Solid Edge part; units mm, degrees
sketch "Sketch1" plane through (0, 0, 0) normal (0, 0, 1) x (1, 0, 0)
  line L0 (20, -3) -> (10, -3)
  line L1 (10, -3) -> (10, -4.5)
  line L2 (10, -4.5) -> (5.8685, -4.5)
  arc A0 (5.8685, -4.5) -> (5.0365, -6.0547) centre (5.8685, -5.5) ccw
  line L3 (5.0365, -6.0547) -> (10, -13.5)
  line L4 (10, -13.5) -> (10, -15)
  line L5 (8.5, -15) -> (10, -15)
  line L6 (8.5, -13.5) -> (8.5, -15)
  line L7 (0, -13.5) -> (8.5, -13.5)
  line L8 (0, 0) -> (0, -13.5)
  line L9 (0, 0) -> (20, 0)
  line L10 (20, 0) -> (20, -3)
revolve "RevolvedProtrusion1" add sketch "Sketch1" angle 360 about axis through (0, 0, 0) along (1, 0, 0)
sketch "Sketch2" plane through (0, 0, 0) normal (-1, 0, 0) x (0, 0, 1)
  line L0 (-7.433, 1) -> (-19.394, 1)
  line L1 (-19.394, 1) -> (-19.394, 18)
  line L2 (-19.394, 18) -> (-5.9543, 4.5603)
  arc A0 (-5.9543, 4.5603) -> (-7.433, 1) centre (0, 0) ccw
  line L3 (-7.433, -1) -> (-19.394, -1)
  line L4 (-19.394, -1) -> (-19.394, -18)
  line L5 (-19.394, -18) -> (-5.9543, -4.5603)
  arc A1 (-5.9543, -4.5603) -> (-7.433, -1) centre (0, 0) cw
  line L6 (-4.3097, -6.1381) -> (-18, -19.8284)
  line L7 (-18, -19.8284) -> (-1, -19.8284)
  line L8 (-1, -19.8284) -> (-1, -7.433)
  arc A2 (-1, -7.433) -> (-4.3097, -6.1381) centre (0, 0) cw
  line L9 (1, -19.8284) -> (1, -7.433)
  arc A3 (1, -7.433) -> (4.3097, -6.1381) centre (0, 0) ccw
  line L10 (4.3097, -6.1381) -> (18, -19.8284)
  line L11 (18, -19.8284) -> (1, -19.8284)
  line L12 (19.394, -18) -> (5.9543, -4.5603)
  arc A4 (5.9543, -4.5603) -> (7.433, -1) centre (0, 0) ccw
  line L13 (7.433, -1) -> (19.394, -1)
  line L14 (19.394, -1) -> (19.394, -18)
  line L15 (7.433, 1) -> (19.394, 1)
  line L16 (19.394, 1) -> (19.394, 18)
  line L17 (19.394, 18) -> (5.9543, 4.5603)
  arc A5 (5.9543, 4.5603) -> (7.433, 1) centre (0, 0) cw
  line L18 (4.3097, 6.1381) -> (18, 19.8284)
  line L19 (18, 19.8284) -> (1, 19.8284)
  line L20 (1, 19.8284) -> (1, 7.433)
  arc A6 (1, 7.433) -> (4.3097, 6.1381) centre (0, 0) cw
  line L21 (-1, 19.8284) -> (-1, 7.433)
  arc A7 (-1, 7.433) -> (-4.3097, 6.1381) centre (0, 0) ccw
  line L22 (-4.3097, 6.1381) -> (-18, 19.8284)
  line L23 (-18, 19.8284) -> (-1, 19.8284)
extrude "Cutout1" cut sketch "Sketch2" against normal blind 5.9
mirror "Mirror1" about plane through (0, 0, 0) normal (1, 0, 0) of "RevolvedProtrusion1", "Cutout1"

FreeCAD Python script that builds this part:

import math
import FreeCAD as App
import Part
import Sketcher
Q = App.Units.Quantity

doc = App.newDocument("Part")
body = doc.addObject("PartDesign::Body", "Body")

# Sketch on XY plane
sketch1 = body.newObject("Sketcher::SketchObject", "Sketch")
sketch1.AttachmentSupport = (doc.getObject("XY_Plane"), [""])
sketch1.MapMode = "FlatFace"
sketch1.addGeometry(Part.LineSegment(App.Vector(10, -3, 0), App.Vector(20, -3, 0)), False)
sketch1.addGeometry(Part.LineSegment(App.Vector(20, -3, 0), App.Vector(20, 0, 0)), False)
sketch1.addGeometry(Part.LineSegment(App.Vector(20, 0, 0), App.Vector(0, 0, 0)), False)
sketch1.addGeometry(Part.LineSegment(App.Vector(0, 0, 0), App.Vector(0, -13.5, 0)), False)
sketch1.addGeometry(Part.LineSegment(App.Vector(0, -13.5, 0), App.Vector(8.5, -13.5, 0)), False)
sketch1.addGeometry(Part.LineSegment(App.Vector(8.5, -13.5, 0), App.Vector(8.5, -15, 0)), False)
sketch1.addGeometry(Part.LineSegment(App.Vector(8.5, -15, 0), App.Vector(10, -15, 0)), False)
sketch1.addGeometry(Part.LineSegment(App.Vector(10, -15, 0), App.Vector(10, -13.5, 0)), False)
sketch1.addGeometry(Part.LineSegment(App.Vector(10, -13.5, 0), App.Vector(5, -6.1, 0)), False)
sketch1.addGeometry(Part.ArcOfCircle(Part.Circle(App.Vector(5.9, -5.5, 0), App.Vector(0, 0, 1), 1), math.radians(90), math.radians(214)), False)
sketch1.addGeometry(Part.LineSegment(App.Vector(5.9, -4.5, 0), App.Vector(10, -4.5, 0)), False)
sketch1.addGeometry(Part.LineSegment(App.Vector(10, -4.5, 0), App.Vector(10, -3, 0)), False)
sketch1.addConstraint(Sketcher.Constraint("Coincident", 0, 2, 1, 1))
sketch1.addConstraint(Sketcher.Constraint("Coincident", 1, 2, 2, 1))
sketch1.addConstraint(Sketcher.Constraint("Coincident", 2, 2, 3, 1))
sketch1.addConstraint(Sketcher.Constraint("Coincident", 3, 2, 4, 1))
sketch1.addConstraint(Sketcher.Constraint("Coincident", 4, 2, 5, 1))
sketch1.addConstraint(Sketcher.Constraint("Coincident", 5, 2, 6, 1))
sketch1.addConstraint(Sketcher.Constraint("Coincident", 6, 2, 7, 1))
sketch1.addConstraint(Sketcher.Constraint("Coincident", 7, 2, 8, 1))
sketch1.addConstraint(Sketcher.Constraint("Tangent", 8, 2, 9, 2))
sketch1.addConstraint(Sketcher.Constraint("Tangent", 9, 1, 10, 1))
sketch1.addConstraint(Sketcher.Constraint("Coincident", 10, 2, 11, 1))
sketch1.addConstraint(Sketcher.Constraint("Coincident", 11, 2, 0, 1))
sketch1.addConstraint(Sketcher.Constraint("Horizontal", 0))
sketch1.addConstraint(Sketcher.Constraint("Vertical", 1))
sketch1.addConstraint(Sketcher.Constraint("Horizontal", 2))
sketch1.addConstraint(Sketcher.Constraint("Vertical", 3))
sketch1.addConstraint(Sketcher.Constraint("Horizontal", 4))
sketch1.addConstraint(Sketcher.Constraint("Vertical", 5))
sketch1.addConstraint(Sketcher.Constraint("Horizontal", 6))
sketch1.addConstraint(Sketcher.Constraint("Vertical", 7))
sketch1.addConstraint(Sketcher.Constraint("Horizontal", 10))
sketch1.addConstraint(Sketcher.Constraint("Vertical", 11))
sketch1.addConstraint(Sketcher.Constraint("Coincident", 2, 2, -1, 1))
sketch1.addConstraint(Sketcher.Constraint("Horizontal", 4, 2, 7, 2))
sketch1.addConstraint(Sketcher.Constraint("Vertical", 7, 2, 10, 2))
sketch1.addConstraint(Sketcher.Constraint("Equal", 6, 5))
sketch1.addConstraint(Sketcher.Constraint("Equal", 7, 11))
sketch1.addConstraint(Sketcher.Constraint("Radius", 9, 1.0))
sketch1.addConstraint(Sketcher.Constraint("DistanceX", 0, 1, 0, 2, 10.0))
sketch1.addConstraint(Sketcher.Constraint("DistanceX", 2, 2, 2, 1, 20.0))
sketch1.addConstraint(Sketcher.Constraint("DistanceY", 1, 1, 1, 2, 3.0))
sketch1.addConstraint(Sketcher.Constraint("DistanceX", 4, 1, 4, 2, 8.5))
sketch1.addConstraint(Sketcher.Constraint("DistanceY", 3, 2, 3, 1, 13.5))
sketch1.addConstraint(Sketcher.Constraint("Angle", 8, Q("123.69 deg")))
revolution = body.newObject("PartDesign::Revolution", "Revolution")
revolution.Profile = sketch1
revolution.ReferenceAxis = (sketch1, ["H_Axis"])
revolution.Angle = 360

# Sketch on YZ plane
sketch2 = body.newObject("Sketcher::SketchObject", "Sketch001")
sketch2.AttachmentSupport = (doc.getObject("YZ_Plane"), [""])
sketch2.MapMode = "FlatFace"
sketch2.addGeometry(Part.LineSegment(App.Vector(1, -19.4, 0), App.Vector(1, -7.4, 0)), False)
sketch2.addGeometry(Part.ArcOfCircle(Part.Circle(App.Vector(0, 0, 0), App.Vector(0, 0, 1), 7.5), math.radians(-82), math.radians(-53)), False)
sketch2.addGeometry(Part.LineSegment(App.Vector(4.6, -6, 0), App.Vector(18, -19.4, 0)), False)
sketch2.addGeometry(Part.LineSegment(App.Vector(18, -19.4, 0), App.Vector(1, -19.4, 0)), False)
sketch2.addGeometry(Part.ArcOfCircle(Part.Circle(App.Vector(0, 0, 0), App.Vector(0, 0, 1), 7.5), math.radians(-127), math.radians(-98)), False)
sketch2.addGeometry(Part.LineSegment(App.Vector(-1, -7.4, 0), App.Vector(-1, -19.4, 0)), False)
sketch2.addGeometry(Part.LineSegment(App.Vector(-1, -19.4, 0), App.Vector(-18, -19.4, 0)), False)
sketch2.addGeometry(Part.LineSegment(App.Vector(-18, -19.4, 0), App.Vector(-4.6, -6, 0)), False)
sketch2.addGeometry(Part.ArcOfCircle(Part.Circle(App.Vector(0, 0, 0), App.Vector(0, 0, 1), 7.5), math.radians(-172), math.radians(-145)), False)
sketch2.addGeometry(Part.LineSegment(App.Vector(-6.1, -4.3, 0), App.Vector(-19.8, -18, 0)), False)
sketch2.addGeometry(Part.LineSegment(App.Vector(-19.8, -18, 0), App.Vector(-19.8, -1, 0)), False)
sketch2.addGeometry(Part.LineSegment(App.Vector(-19.8, -1, 0), App.Vector(-7.4, -1, 0)), False)
sketch2.addGeometry(Part.LineSegment(App.Vector(-7.4, 1, 0), App.Vector(-19.8, 1, 0)), False)
sketch2.addGeometry(Part.LineSegment(App.Vector(-19.8, 1, 0), App.Vector(-19.8, 18, 0)), False)
sketch2.addGeometry(Part.LineSegment(App.Vector(-19.8, 18, 0), App.Vector(-6.1, 4.3, 0)), False)
sketch2.addGeometry(Part.ArcOfCircle(Part.Circle(App.Vector(0, 0, 0), App.Vector(0, 0, 1), 7.5), math.radians(145), math.radians(172)), False)
sketch2.addGeometry(Part.LineSegment(App.Vector(-4.6, 6, 0), App.Vector(-18, 19.4, 0)), False)
sketch2.addGeometry(Part.LineSegment(App.Vector(-18, 19.4, 0), App.Vector(-1, 19.4, 0)), False)
sketch2.addGeometry(Part.LineSegment(App.Vector(-1, 19.4, 0), App.Vector(-1, 7.4, 0)), False)
sketch2.addGeometry(Part.ArcOfCircle(Part.Circle(App.Vector(0, 0, 0), App.Vector(0, 0, 1), 7.5), math.radians(98), math.radians(127)), False)
sketch2.addGeometry(Part.ArcOfCircle(Part.Circle(App.Vector(0, 0, 0), App.Vector(0, 0, 1), 7.5), math.radians(53), math.radians(82)), False)
sketch2.addGeometry(Part.LineSegment(App.Vector(1, 7.4, 0), App.Vector(1, 19.4, 0)), False)
sketch2.addGeometry(Part.LineSegment(App.Vector(1, 19.4, 0), App.Vector(18, 19.4, 0)), False)
sketch2.addGeometry(Part.LineSegment(App.Vector(18, 19.4, 0), App.Vector(4.6, 6, 0)), False)
sketch2.addGeometry(Part.ArcOfCircle(Part.Circle(App.Vector(0, 0, 0), App.Vector(0, 0, 1), 7.5), math.radians(8), math.radians(35)), False)
sketch2.addGeometry(Part.LineSegment(App.Vector(6.1, 4.3, 0), App.Vector(19.8, 18, 0)), False)
sketch2.addGeometry(Part.LineSegment(App.Vector(19.8, 18, 0), App.Vector(19.8, 1, 0)), False)
sketch2.addGeometry(Part.LineSegment(App.Vector(19.8, 1, 0), App.Vector(7.4, 1, 0)), False)
sketch2.addGeometry(Part.LineSegment(App.Vector(7.4, -1, 0), App.Vector(19.8, -1, 0)), False)
sketch2.addGeometry(Part.LineSegment(App.Vector(19.8, -1, 0), App.Vector(19.8, -18, 0)), False)
sketch2.addGeometry(Part.LineSegment(App.Vector(19.8, -18, 0), App.Vector(6.1, -4.3, 0)), False)
sketch2.addGeometry(Part.ArcOfCircle(Part.Circle(App.Vector(0, 0, 0), App.Vector(0, 0, 1), 7.5), math.radians(-35), math.radians(-8)), False)
sketch2.addConstraint(Sketcher.Constraint("Coincident", 0, 2, 1, 1))
sketch2.addConstraint(Sketcher.Constraint("Coincident", 1, 2, 2, 1))
sketch2.addConstraint(Sketcher.Constraint("Coincident", 2, 2, 3, 1))
sketch2.addConstraint(Sketcher.Constraint("Coincident", 3, 2, 0, 1))
sketch2.addConstraint(Sketcher.Constraint("Coincident", 4, 2, 5, 1))
sketch2.addConstraint(Sketcher.Constraint("Coincident", 5, 2, 6, 1))
sketch2.addConstraint(Sketcher.Constraint("Coincident", 6, 2, 7, 1))
sketch2.addConstraint(Sketcher.Constraint("Coincident", 7, 2, 4, 1))
sketch2.addConstraint(Sketcher.Constraint("Coincident", 8, 2, 9, 1))
sketch2.addConstraint(Sketcher.Constraint("Coincident", 9, 2, 10, 1))
sketch2.addConstraint(Sketcher.Constraint("Coincident", 10, 2, 11, 1))
sketch2.addConstraint(Sketcher.Constraint("Coincident", 11, 2, 8, 1))
sketch2.addConstraint(Sketcher.Constraint("Coincident", 12, 2, 13, 1))
sketch2.addConstraint(Sketcher.Constraint("Coincident", 13, 2, 14, 1))
sketch2.addConstraint(Sketcher.Constraint("Coincident", 14, 2, 15, 1))
sketch2.addConstraint(Sketcher.Constraint("Coincident", 15, 2, 12, 1))
sketch2.addConstraint(Sketcher.Constraint("Coincident", 16, 2, 17, 1))
sketch2.addConstraint(Sketcher.Constraint("Coincident", 17, 2, 18, 1))
sketch2.addConstraint(Sketcher.Constraint("Coincident", 18, 2, 19, 1))
sketch2.addConstraint(Sketcher.Constraint("Coincident", 19, 2, 16, 1))
sketch2.addConstraint(Sketcher.Constraint("Coincident", 20, 2, 21, 1))
sketch2.addConstraint(Sketcher.Constraint("Coincident", 21, 2, 22, 1))
sketch2.addConstraint(Sketcher.Constraint("Coincident", 22, 2, 23, 1))
sketch2.addConstraint(Sketcher.Constraint("Coincident", 23, 2, 20, 1))
sketch2.addConstraint(Sketcher.Constraint("Coincident", 24, 2, 25, 1))
sketch2.addConstraint(Sketcher.Constraint("Coincident", 25, 2, 26, 1))
sketch2.addConstraint(Sketcher.Constraint("Coincident", 26, 2, 27, 1))
sketch2.addConstraint(Sketcher.Constraint("Coincident", 27, 2, 24, 1))
sketch2.addConstraint(Sketcher.Constraint("Coincident", 28, 2, 29, 1))
sketch2.addConstraint(Sketcher.Constraint("Coincident", 29, 2, 30, 1))
sketch2.addConstraint(Sketcher.Constraint("Coincident", 30, 2, 31, 1))
sketch2.addConstraint(Sketcher.Constraint("Coincident", 31, 2, 28, 1))
sketch2.addConstraint(Sketcher.Constraint("Vertical", 0))
sketch2.addConstraint(Sketcher.Constraint("Horizontal", 3))
sketch2.addConstraint(Sketcher.Constraint("Vertical", 5))
sketch2.addConstraint(Sketcher.Constraint("Horizontal", 6))
sketch2.addConstraint(Sketcher.Constraint("Vertical", 10))
sketch2.addConstraint(Sketcher.Constraint("Horizontal", 11))
sketch2.addConstraint(Sketcher.Constraint("Horizontal", 12))
sketch2.addConstraint(Sketcher.Constraint("Vertical", 13))
sketch2.addConstraint(Sketcher.Constraint("Horizontal", 17))
sketch2.addConstraint(Sketcher.Constraint("Vertical", 18))
sketch2.addConstraint(Sketcher.Constraint("Vertical", 21))
sketch2.addConstraint(Sketcher.Constraint("Horizontal", 22))
sketch2.addConstraint(Sketcher.Constraint("Vertical", 26))
sketch2.addConstraint(Sketcher.Constraint("Horizontal", 27))
sketch2.addConstraint(Sketcher.Constraint("Horizontal", 28))
sketch2.addConstraint(Sketcher.Constraint("Vertical", 29))
sketch2.addConstraint(Sketcher.Constraint("Coincident", 1, 3, -1, 1))
sketch2.addConstraint(Sketcher.Constraint("Coincident", 4, 3, -1, 1))
sketch2.addConstraint(Sketcher.Constraint("Coincident", 8, 3, -1, 1))
sketch2.addConstraint(Sketcher.Constraint("Coincident", 15, 3, -1, 1))
sketch2.addConstraint(Sketcher.Constraint("Coincident", 19, 3, -1, 1))
sketch2.addConstraint(Sketcher.Constraint("Coincident", 20, 3, -1, 1))
sketch2.addConstraint(Sketcher.Constraint("Coincident", 24, 3, -1, 1))
sketch2.addConstraint(Sketcher.Constraint("Coincident", 31, 3, -1, 1))
sketch2.addConstraint(Sketcher.Constraint("Equal", 1, 4))
sketch2.addConstraint(Sketcher.Constraint("Equal", 4, 8))
sketch2.addConstraint(Sketcher.Constraint("Equal", 8, 15))
sketch2.addConstraint(Sketcher.Constraint("Equal", 15, 19))
sketch2.addConstraint(Sketcher.Constraint("Equal", 19, 20))
sketch2.addConstraint(Sketcher.Constraint("Equal", 20, 24))
sketch2.addConstraint(Sketcher.Constraint("Equal", 24, 31))
sketch2.addConstraint(Sketcher.Constraint("Symmetric", 2, 2, 16, 2, -1, 1))
sketch2.addConstraint(Sketcher.Constraint("Symmetric", 5, 2, 21, 2, -1, 1))
sketch2.addConstraint(Sketcher.Constraint("Symmetric", 9, 2, 25, 2, -1, 1))
sketch2.addConstraint(Sketcher.Constraint("Symmetric", 12, 2, 28, 2, -1, 1))
sketch2.addConstraint(Sketcher.Constraint("Symmetric", 3, 2, 5, 2, -2))
sketch2.addConstraint(Sketcher.Constraint("Symmetric", 13, 2, 25, 2, -2))
sketch2.addConstraint(Sketcher.Constraint("Perpendicular", 2, 7))
sketch2.addConstraint(Sketcher.Constraint("Parallel", 7, 9))
sketch2.addConstraint(Sketcher.Constraint("Perpendicular", 9, 14))
sketch2.addConstraint(Sketcher.Constraint("Parallel", 14, 16))
sketch2.addConstraint(Sketcher.Constraint("Perpendicular", 16, 23))
sketch2.addConstraint(Sketcher.Constraint("Parallel", 23, 25))
sketch2.addConstraint(Sketcher.Constraint("Perpendicular", 25, 30))
sketch2.addConstraint(Sketcher.Constraint("Horizontal", 1, 2, 7, 2))
sketch2.addConstraint(Sketcher.Constraint("Horizontal", 18, 2, 20, 2))
sketch2.addConstraint(Sketcher.Constraint("Horizontal", 19, 2, 23, 2))
sketch2.addConstraint(Sketcher.Constraint("Horizontal", 14, 2, 24, 2))
sketch2.addConstraint(Sketcher.Constraint("Horizontal", 15, 2, 26, 2))
sketch2.addConstraint(Sketcher.Constraint("Horizontal", 11, 2, 28, 2))
sketch2.addConstraint(Sketcher.Constraint("Horizontal", 9, 2, 29, 2))
sketch2.addConstraint(Sketcher.Constraint("Equal", 22, 10))
sketch2.addConstraint(Sketcher.Constraint("Radius", 1, 7.5))
sketch2.addConstraint(Sketcher.Constraint("DistanceX", 3, 2, 3, 1, 17.0))
sketch2.addConstraint(Sketcher.Constraint("DistanceX", -1, 1, 0, 2, 1.0))
sketch2.addConstraint(Sketcher.Constraint("DistanceY", 9, 2, -1, 1, 18.0))
sketch2.addConstraint(Sketcher.Constraint("DistanceY", 0, 1, 0, 2, 11.961))
sketch2.addConstraint(Sketcher.Constraint("Distance", 9, 19.361))
pocket1 = body.newObject("PartDesign::Pocket", "Pocket")
pocket1.Profile = sketch2
pocket1.Length = 5.9
pocket1.Reversed = True
doc.recompute()

mirrored = body.newObject("PartDesign::Mirrored", "Mirrored")
mirrored.Originals = [revolution, pocket1]
mirrored.MirrorPlane = (doc.getObject("YZ_Plane"), [""])
body.Tip = mirrored

doc.recompute()
